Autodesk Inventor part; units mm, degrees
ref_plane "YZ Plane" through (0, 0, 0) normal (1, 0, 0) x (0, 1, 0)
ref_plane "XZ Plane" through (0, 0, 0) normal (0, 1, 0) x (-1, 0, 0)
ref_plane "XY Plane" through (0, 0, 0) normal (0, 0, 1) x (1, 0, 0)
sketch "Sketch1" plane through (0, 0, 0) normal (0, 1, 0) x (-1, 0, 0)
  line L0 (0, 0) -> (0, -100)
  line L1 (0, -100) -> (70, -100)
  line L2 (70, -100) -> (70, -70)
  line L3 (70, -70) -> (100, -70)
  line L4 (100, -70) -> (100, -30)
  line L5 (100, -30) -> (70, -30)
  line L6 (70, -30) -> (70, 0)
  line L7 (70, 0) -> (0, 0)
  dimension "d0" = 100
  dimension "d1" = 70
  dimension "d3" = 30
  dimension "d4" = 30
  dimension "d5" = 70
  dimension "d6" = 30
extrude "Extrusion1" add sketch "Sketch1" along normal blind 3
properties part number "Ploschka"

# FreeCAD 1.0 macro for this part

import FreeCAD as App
import Part
import Sketcher
Q = App.Units.Quantity


def add_polygon(sketch, points):
    """Adds a closed chain of lines whose ends are joined by coincident constraints."""
    first, n = sketch.GeometryCount, len(points)
    for a, b in zip(points, points[1:] + points[:1]):
        sketch.addGeometry(Part.LineSegment(App.Vector(*a, 0), App.Vector(*b, 0)), False)
    for i in range(n):
        sketch.addConstraint(Sketcher.Constraint("Coincident", first + i, 2, first + (i + 1) % n, 1))

doc = App.newDocument("Part")
body = doc.addObject("PartDesign::Body", "Body")

sketch1 = body.newObject("Sketcher::SketchObject", "Sketch")
sketch1.AttachmentSupport = (doc.getObject("XZ_Plane"), [""])
sketch1.MapMode = "FlatFace"
add_polygon(sketch1, [(-70, 0), (0, 0), (0, -100), (-70, -100), (-70, -70), (-100, -70), (-100, -30), (-70, -30)])
sketch1.addConstraint([
    Sketcher.Constraint("Horizontal", 0),
    Sketcher.Constraint("Vertical", 1),
    Sketcher.Constraint("Horizontal", 2),
    Sketcher.Constraint("Vertical", 3),
    Sketcher.Constraint("Horizontal", 4),
    Sketcher.Constraint("Vertical", 5),
    Sketcher.Constraint("Horizontal", 6),
    Sketcher.Constraint("Vertical", 7),
    Sketcher.Constraint("Coincident", 0, 2, -1, 1),
    Sketcher.Constraint("Vertical", 3, 2, 6, 2),
    Sketcher.Constraint("Equal", 6, 3),
    Sketcher.Constraint("Equal", 3, 7),
    Sketcher.Constraint("DistanceY", 1, 2, 1, 1, Q("3.937 in")),
    Sketcher.Constraint("DistanceX", 0, 1, 0, 2, Q("2.7559 in")),
    Sketcher.Constraint("DistanceX", 4, 2, 4, 1, Q("1.1811 in")),
])
pad1 = body.newObject("PartDesign::Pad", "Pad")
pad1.Profile = sketch1
pad1.Length = Q("0.1181102 in")
pad1.Reversed = True

doc.recompute()
